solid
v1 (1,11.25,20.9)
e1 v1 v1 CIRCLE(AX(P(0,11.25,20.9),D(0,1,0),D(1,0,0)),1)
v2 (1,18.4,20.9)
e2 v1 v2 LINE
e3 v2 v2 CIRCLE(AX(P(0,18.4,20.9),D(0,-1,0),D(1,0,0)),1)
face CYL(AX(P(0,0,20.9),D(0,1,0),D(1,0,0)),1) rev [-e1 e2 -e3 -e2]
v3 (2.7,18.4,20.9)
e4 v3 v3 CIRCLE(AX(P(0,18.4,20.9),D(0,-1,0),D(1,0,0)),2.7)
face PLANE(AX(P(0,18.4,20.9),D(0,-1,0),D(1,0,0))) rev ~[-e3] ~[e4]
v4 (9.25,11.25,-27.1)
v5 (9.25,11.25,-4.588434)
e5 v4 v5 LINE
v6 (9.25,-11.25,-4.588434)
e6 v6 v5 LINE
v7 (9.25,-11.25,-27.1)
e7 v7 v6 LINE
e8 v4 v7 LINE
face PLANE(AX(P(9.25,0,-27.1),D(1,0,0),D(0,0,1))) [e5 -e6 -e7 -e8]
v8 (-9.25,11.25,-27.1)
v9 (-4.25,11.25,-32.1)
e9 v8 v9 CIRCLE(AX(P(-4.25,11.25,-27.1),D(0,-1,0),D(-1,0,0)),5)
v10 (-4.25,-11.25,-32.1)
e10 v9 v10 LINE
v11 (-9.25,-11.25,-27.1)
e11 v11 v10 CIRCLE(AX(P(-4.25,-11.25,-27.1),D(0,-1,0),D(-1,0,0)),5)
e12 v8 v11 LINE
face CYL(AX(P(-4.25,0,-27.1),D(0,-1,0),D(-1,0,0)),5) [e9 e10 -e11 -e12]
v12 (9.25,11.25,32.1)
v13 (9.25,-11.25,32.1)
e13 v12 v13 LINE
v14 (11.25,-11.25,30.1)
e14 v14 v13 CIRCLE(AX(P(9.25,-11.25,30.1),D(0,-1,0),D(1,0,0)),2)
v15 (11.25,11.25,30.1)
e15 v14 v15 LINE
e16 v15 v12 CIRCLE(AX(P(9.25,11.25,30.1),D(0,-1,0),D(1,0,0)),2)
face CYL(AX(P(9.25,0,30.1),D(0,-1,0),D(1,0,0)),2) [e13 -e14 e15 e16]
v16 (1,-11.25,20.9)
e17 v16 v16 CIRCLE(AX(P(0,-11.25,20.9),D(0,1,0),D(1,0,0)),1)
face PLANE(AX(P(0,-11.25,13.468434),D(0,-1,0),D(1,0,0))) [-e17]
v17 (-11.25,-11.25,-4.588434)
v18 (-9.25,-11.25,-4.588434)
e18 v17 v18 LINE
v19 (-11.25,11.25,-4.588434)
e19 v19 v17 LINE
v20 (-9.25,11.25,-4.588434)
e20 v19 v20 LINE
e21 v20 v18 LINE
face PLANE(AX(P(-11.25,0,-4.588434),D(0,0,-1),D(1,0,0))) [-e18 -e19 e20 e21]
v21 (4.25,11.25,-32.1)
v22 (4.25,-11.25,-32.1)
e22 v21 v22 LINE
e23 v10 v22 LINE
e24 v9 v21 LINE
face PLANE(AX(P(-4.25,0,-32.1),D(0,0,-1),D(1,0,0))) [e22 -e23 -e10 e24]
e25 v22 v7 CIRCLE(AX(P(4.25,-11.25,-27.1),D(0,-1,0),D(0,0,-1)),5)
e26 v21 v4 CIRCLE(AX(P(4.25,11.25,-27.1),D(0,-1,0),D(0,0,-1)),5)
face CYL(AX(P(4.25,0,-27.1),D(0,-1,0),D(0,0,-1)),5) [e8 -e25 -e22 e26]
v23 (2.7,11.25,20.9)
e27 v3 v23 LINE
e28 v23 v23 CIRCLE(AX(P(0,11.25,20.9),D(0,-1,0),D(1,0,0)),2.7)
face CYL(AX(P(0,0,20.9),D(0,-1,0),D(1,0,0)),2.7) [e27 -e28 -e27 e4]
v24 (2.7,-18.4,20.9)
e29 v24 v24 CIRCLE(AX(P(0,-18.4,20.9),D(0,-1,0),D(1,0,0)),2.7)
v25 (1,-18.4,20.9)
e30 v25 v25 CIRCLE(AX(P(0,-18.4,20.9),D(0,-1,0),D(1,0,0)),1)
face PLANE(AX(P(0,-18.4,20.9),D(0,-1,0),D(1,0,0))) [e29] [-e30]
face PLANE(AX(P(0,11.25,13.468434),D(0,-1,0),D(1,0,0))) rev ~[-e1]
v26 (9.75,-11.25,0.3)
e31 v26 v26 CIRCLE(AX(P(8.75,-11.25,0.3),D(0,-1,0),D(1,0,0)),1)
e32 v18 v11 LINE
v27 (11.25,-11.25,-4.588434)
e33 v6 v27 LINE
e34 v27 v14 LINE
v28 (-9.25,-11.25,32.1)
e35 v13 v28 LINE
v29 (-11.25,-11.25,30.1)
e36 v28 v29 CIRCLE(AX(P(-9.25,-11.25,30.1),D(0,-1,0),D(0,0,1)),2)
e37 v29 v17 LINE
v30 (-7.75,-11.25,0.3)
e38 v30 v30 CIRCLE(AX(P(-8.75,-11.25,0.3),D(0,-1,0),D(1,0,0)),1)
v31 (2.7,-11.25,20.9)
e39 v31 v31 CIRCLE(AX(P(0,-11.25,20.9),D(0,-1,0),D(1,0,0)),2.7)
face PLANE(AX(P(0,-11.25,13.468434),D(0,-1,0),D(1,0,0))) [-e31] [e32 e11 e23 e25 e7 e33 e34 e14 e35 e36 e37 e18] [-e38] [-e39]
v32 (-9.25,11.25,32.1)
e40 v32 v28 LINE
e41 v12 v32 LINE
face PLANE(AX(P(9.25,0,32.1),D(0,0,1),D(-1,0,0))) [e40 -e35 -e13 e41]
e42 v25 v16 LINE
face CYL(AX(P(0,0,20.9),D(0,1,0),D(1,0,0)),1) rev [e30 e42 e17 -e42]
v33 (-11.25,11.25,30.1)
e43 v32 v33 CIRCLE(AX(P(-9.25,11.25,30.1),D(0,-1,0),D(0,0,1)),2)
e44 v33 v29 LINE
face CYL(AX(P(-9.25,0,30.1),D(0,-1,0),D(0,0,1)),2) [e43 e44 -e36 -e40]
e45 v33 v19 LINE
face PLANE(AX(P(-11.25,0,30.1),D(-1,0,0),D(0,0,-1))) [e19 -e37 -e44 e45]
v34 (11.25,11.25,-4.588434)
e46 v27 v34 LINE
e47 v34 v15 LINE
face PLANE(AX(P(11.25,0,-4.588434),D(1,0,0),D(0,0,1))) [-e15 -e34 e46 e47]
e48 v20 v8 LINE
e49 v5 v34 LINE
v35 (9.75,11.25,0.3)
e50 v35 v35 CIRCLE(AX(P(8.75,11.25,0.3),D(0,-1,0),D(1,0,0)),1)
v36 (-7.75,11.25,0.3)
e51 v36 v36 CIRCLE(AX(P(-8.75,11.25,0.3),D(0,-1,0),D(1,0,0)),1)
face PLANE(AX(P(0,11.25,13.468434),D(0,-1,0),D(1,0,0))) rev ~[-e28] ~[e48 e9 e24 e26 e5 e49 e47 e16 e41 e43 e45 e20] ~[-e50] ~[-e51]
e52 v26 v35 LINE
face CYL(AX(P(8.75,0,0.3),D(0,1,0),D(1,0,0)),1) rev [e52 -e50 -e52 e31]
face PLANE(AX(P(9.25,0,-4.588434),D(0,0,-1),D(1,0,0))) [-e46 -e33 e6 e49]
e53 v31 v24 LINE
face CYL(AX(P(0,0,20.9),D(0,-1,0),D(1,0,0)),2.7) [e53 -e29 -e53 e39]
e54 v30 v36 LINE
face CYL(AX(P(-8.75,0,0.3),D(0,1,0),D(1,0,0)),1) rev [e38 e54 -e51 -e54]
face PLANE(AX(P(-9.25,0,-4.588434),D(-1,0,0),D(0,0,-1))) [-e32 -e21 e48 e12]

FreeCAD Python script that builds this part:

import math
import FreeCAD as App
import Part
import Sketcher
from FreeCAD import Vector

doc = App.newDocument("Part")
params = doc.addObject("Spreadsheet::Sheet", "Params")
for row, (alias, value) in enumerate([
    ("sketch1_diameter", "2 mm"),
    ("sketch1_radius", "2 mm"),
    ("sketch1_radius2", "5 mm"),
    ("sketch1_width", "18.5 mm"),
    ("pad1_length", "22.5 mm"),
    ("sketch2_diameter", "2 mm"),
    ("sketch2_diameter2", "5.4 mm"),
    ("pad2_length", "36.8 mm"),
], start=1):
    params.set(f"A{row}", alias)
    params.set(f"B{row}", "=" + value)
    params.setAlias(f"B{row}", alias)

body = doc.addObject("PartDesign::Body", "Body")

# Sketch on XZ plane
sketch1 = doc.addObject("Sketcher::SketchObject", "Sketch")
body.addObject(sketch1)
sketch1.AttachmentSupport = (doc.XZ_Plane, [""])
sketch1.MapMode = "FlatFace"
sketch1.addGeometry(Part.ArcOfCircle(Part.Circle(Vector(9.2, 30.1, 0), Vector(0, 0, 1), 2), math.radians(0), math.radians(90)), False)
sketch1.addGeometry(Part.LineSegment(Vector(9.2, 32.1, 0), Vector(-9.2, 32.1, 0)), False)
sketch1.addGeometry(Part.ArcOfCircle(Part.Circle(Vector(-9.2, 30.1, 0), Vector(0, 0, 1), 2), math.radians(90), math.radians(180)), False)
sketch1.addGeometry(Part.LineSegment(Vector(-11.2, 30.1, 0), Vector(-11.2, -4.6, 0)), False)
sketch1.addGeometry(Part.LineSegment(Vector(-11.2, -4.6, 0), Vector(-9.2, -4.6, 0)), False)
sketch1.addGeometry(Part.LineSegment(Vector(-9.2, -4.6, 0), Vector(-9.2, -27.1, 0)), False)
sketch1.addGeometry(Part.ArcOfCircle(Part.Circle(Vector(-4.2, -27.1, 0), Vector(0, 0, 1), 5), math.radians(180), math.radians(270)), False)
sketch1.addGeometry(Part.LineSegment(Vector(-4.2, -32.1, 0), Vector(4.2, -32.1, 0)), False)
sketch1.addGeometry(Part.ArcOfCircle(Part.Circle(Vector(4.2, -27.1, 0), Vector(0, 0, 1), 5), math.radians(-90), math.radians(0)), False)
sketch1.addGeometry(Part.LineSegment(Vector(9.2, -27.1, 0), Vector(9.2, -4.6, 0)), False)
sketch1.addGeometry(Part.LineSegment(Vector(9.2, -4.6, 0), Vector(11.2, -4.6, 0)), False)
sketch1.addGeometry(Part.LineSegment(Vector(11.2, -4.6, 0), Vector(11.2, 30.1, 0)), False)
sketch1.addGeometry(Part.Circle(Vector(-8.8, 0.3, 0), Vector(0, 0, 1), 1), False)
sketch1.addGeometry(Part.Circle(Vector(8.8, 0.3, 0), Vector(0, 0, 1), 1), False)
sketch1.addConstraint(Sketcher.Constraint("Tangent", 0, 2, 1, 1))
sketch1.addConstraint(Sketcher.Constraint("Tangent", 1, 2, 2, 1))
sketch1.addConstraint(Sketcher.Constraint("Tangent", 2, 2, 3, 1))
sketch1.addConstraint(Sketcher.Constraint("Coincident", 3, 2, 4, 1))
sketch1.addConstraint(Sketcher.Constraint("Coincident", 4, 2, 5, 1))
sketch1.addConstraint(Sketcher.Constraint("Tangent", 5, 2, 6, 1))
sketch1.addConstraint(Sketcher.Constraint("Tangent", 6, 2, 7, 1))
sketch1.addConstraint(Sketcher.Constraint("Tangent", 7, 2, 8, 1))
sketch1.addConstraint(Sketcher.Constraint("Tangent", 8, 2, 9, 1))
sketch1.addConstraint(Sketcher.Constraint("Coincident", 9, 2, 10, 1))
sketch1.addConstraint(Sketcher.Constraint("Coincident", 10, 2, 11, 1))
sketch1.addConstraint(Sketcher.Constraint("Tangent", 11, 2, 0, 1))
sketch1.addConstraint(Sketcher.Constraint("Horizontal", 1))
sketch1.addConstraint(Sketcher.Constraint("Vertical", 3))
sketch1.addConstraint(Sketcher.Constraint("Horizontal", 4))
sketch1.addConstraint(Sketcher.Constraint("Vertical", 5))
sketch1.addConstraint(Sketcher.Constraint("Horizontal", 7))
sketch1.addConstraint(Sketcher.Constraint("Vertical", 9))
sketch1.addConstraint(Sketcher.Constraint("Horizontal", 10))
sketch1.addConstraint(Sketcher.Constraint("Vertical", 11))
sketch1.addConstraint(Sketcher.Constraint("Equal", 0, 2))
sketch1.addConstraint(Sketcher.Constraint("Equal", 6, 8))
sketch1.addConstraint(Sketcher.Constraint("Equal", 12, 13))
sketch1.addConstraint(Sketcher.Constraint("Symmetric", 12, 3, 13, 3, -2))
sketch1.addConstraint(Sketcher.Constraint("Symmetric", 4, 2, 9, 2, -2))
sketch1.addConstraint(Sketcher.Constraint("Vertical", 1, 2, 4, 2))
sketch1.addConstraint(Sketcher.Constraint("Vertical", 0, 2, 8, 2))
sketch1.addConstraint(Sketcher.Constraint("Diameter", 12, 2.0))
sketch1.addConstraint(Sketcher.Constraint("Radius", 0, 2.0))
sketch1.addConstraint(Sketcher.Constraint("Radius", 6, 5.0))
sketch1.addConstraint(Sketcher.Constraint("DistanceX", 1, 2, 1, 1, 18.5))
sketch1.addConstraint(Sketcher.Constraint("DistanceX", 12, 3, 8, 3, 13.0))
sketch1.addConstraint(Sketcher.Constraint("DistanceY", -1, 1, 0, 3, 30.1))
sketch1.addConstraint(Sketcher.Constraint("DistanceY", 6, 3, -1, 1, 27.1))
sketch1.addConstraint(Sketcher.Constraint("DistanceY", -1, 1, 12, 3, 0.3))
sketch1.addConstraint(Sketcher.Constraint("DistanceY", 3, 2, 3, 1, 34.688434))
sketch1.setExpression("Constraints[27]", "Params.sketch1_diameter")
sketch1.setExpression("Constraints[28]", "Params.sketch1_radius")
sketch1.setExpression("Constraints[29]", "Params.sketch1_radius2")
sketch1.setExpression("Constraints[30]", "Params.sketch1_width")
pad1 = doc.addObject("PartDesign::Pad", "Pad")
body.addObject(pad1)
pad1.Profile = sketch1
pad1.setExpression("Length", "Params.pad1_length")
pad1.Midplane = True

# Sketch on XZ plane
sketch2 = doc.addObject("Sketcher::SketchObject", "Sketch001")
body.addObject(sketch2)
sketch2.AttachmentSupport = (doc.XZ_Plane, [""])
sketch2.MapMode = "FlatFace"
sketch2.addGeometry(Part.Circle(Vector(0, 20.9, 0), Vector(0, 0, 1), 2.7), False)
sketch2.addGeometry(Part.Circle(Vector(0, 20.9, 0), Vector(0, 0, 1), 1), False)
sketch2.addConstraint(Sketcher.Constraint("Coincident", 1, 3, 0, 3))
sketch2.addConstraint(Sketcher.Constraint("PointOnObject", 0, 3, -2))
sketch2.addConstraint(Sketcher.Constraint("Diameter", 1, 2.0))
sketch2.addConstraint(Sketcher.Constraint("Diameter", 0, 5.4))
sketch2.addConstraint(Sketcher.Constraint("DistanceY", -1, 1, 0, 3, 20.9))
sketch2.setExpression("Constraints[2]", "Params.sketch2_diameter")
sketch2.setExpression("Constraints[3]", "Params.sketch2_diameter2")
pad2 = doc.addObject("PartDesign::Pad", "Pad001")
body.addObject(pad2)
pad2.Profile = sketch2
pad2.setExpression("Length", "Params.pad2_length")
pad2.Midplane = True

doc.recompute()
